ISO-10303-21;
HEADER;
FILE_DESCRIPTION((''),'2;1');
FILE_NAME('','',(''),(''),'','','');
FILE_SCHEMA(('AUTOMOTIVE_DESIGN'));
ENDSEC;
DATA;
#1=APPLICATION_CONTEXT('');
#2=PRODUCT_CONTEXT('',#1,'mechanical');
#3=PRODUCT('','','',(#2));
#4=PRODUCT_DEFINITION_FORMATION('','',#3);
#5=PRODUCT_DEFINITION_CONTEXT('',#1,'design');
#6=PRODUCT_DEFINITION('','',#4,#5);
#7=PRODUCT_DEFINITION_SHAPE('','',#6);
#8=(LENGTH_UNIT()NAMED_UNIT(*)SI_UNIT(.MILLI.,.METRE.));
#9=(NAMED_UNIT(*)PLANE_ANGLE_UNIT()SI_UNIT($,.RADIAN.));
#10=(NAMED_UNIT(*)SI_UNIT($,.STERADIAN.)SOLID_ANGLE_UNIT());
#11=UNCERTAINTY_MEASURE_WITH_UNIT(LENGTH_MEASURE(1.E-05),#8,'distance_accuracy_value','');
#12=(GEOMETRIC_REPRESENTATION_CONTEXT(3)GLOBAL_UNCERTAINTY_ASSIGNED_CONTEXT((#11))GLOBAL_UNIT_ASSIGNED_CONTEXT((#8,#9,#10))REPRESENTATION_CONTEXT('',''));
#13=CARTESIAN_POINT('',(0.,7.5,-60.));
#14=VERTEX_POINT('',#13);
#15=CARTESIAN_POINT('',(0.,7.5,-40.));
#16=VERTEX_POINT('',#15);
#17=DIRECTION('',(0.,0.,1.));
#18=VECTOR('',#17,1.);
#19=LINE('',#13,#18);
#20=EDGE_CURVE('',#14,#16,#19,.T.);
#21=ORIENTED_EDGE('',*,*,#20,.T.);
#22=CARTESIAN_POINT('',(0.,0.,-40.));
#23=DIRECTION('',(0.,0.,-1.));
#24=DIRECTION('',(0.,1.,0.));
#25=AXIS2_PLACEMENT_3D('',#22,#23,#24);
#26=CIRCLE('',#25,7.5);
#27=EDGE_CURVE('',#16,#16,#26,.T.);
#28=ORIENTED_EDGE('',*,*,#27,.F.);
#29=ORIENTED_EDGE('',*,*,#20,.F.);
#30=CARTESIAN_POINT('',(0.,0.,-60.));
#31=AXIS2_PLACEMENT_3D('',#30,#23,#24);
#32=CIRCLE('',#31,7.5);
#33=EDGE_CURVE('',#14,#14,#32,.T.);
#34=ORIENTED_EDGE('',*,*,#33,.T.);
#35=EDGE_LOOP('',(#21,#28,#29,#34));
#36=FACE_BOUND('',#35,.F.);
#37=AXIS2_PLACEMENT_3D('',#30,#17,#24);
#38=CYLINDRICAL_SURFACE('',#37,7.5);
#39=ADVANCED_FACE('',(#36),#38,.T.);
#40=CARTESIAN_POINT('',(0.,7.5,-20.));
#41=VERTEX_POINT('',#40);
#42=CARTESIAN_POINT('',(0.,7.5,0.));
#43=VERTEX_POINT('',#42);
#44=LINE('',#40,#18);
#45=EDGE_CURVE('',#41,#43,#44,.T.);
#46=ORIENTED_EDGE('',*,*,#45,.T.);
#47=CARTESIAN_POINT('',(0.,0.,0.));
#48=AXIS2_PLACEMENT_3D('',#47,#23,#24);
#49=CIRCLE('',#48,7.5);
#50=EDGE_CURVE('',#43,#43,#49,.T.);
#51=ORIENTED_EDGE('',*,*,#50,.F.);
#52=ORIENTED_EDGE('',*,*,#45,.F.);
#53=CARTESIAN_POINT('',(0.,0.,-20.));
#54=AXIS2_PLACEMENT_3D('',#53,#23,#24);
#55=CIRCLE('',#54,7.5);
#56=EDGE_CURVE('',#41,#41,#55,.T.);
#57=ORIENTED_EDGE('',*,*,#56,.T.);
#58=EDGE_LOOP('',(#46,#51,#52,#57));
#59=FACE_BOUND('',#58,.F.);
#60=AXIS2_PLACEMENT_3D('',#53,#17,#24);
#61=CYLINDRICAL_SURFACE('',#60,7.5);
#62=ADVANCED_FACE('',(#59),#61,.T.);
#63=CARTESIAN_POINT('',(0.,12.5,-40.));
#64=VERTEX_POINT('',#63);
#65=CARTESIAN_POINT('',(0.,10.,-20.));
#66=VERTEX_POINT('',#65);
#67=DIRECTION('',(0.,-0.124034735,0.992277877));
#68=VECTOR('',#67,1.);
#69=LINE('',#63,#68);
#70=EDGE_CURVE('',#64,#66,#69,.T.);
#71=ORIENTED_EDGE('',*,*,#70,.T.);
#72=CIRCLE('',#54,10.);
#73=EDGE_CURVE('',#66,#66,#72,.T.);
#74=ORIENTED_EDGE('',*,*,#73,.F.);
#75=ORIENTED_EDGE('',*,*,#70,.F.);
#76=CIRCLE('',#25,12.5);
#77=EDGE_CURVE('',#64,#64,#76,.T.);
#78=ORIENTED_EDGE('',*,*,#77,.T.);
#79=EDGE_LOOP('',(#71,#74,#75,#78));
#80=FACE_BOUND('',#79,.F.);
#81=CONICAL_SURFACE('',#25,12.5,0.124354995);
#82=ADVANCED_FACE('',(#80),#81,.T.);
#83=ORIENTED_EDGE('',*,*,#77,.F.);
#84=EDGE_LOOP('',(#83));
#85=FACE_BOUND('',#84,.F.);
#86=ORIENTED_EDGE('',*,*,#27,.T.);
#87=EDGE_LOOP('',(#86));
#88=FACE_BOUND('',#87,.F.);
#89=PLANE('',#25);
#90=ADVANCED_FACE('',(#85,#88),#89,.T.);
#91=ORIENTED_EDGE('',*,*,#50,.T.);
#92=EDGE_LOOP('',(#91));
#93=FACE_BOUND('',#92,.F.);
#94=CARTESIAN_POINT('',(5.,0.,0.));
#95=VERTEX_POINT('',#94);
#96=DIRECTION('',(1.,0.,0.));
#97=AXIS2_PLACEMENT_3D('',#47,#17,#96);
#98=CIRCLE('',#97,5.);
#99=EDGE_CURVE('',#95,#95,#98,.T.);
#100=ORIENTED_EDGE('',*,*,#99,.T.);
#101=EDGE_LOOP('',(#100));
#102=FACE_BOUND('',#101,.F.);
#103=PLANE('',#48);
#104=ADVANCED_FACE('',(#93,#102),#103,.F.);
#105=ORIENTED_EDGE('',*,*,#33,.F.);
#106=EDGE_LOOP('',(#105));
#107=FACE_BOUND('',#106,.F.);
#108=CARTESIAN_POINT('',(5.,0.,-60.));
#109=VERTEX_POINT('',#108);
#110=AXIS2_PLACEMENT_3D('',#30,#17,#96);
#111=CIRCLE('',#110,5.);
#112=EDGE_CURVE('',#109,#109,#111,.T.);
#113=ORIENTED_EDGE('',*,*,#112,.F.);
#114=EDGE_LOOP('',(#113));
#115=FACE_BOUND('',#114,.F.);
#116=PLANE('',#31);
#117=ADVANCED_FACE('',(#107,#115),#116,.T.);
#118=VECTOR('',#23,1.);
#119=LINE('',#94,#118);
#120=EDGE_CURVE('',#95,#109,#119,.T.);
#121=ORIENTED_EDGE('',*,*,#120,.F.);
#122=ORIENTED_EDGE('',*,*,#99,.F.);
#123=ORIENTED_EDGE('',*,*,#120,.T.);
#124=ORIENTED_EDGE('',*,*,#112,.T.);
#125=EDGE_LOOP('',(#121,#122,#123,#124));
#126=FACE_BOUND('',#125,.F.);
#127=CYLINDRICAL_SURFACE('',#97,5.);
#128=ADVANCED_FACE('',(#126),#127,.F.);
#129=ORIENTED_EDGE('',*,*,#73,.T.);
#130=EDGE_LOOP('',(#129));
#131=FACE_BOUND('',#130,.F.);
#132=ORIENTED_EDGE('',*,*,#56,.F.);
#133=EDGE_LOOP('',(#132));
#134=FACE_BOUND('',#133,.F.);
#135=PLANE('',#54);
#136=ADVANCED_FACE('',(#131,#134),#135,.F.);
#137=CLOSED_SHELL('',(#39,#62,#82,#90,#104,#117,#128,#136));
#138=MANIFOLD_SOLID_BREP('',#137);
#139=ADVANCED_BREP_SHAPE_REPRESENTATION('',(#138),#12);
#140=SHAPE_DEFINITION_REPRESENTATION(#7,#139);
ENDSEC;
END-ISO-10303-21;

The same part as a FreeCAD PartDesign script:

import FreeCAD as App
import Part
import Sketcher

V = App.Vector


def add_polygon(sketch, points):
    """Adds a closed chain of lines whose ends are joined by coincident constraints."""
    first, n = sketch.GeometryCount, len(points)
    for a, b in zip(points, points[1:] + points[:1]):
        sketch.addGeometry(Part.LineSegment(App.Vector(*a, 0), App.Vector(*b, 0)), False)
    for i in range(n):
        sketch.addConstraint(Sketcher.Constraint("Coincident", first + i, 2, first + (i + 1) % n, 1))

doc = App.newDocument("Part")
params = doc.addObject("Spreadsheet::Sheet", "Params")
for row, (alias, value) in enumerate([
    ("sketch1_width", "5 mm"),
    ("sketch1_height", "20 mm"),
    ("sketch1_width2", "2.5 mm"),
    ("sketch1_width3", "7.5 mm"),
    ("revolution_angle", "360 deg"),
    ("sketch2_diameter", "10 mm"),
], start=1):
    params.set(f"A{row}", alias)
    params.set(f"B{row}", "=" + value)
    params.setAlias(f"B{row}", alias)

body = doc.addObject("PartDesign::Body", "Body")

sketch1 = doc.addObject("Sketcher::SketchObject", "Sketch")
body.addObject(sketch1)
sketch1.AttachmentSupport = (doc.YZ_Plane, [""])
sketch1.MapMode = "FlatFace"
add_polygon(sketch1, [(7.5, 0), (0, 0), (0, -60), (7.5, -60), (7.5, -40), (12.5, -40), (10, -20), (7.5, -20)])
sketch1.addConstraint([
    Sketcher.Constraint("Horizontal", 0),
    Sketcher.Constraint("Vertical", 1),
    Sketcher.Constraint("Horizontal", 2),
    Sketcher.Constraint("Vertical", 3),
    Sketcher.Constraint("Horizontal", 4),
    Sketcher.Constraint("Horizontal", 6),
    Sketcher.Constraint("Vertical", 7),
    Sketcher.Constraint("Coincident", 0, 2, -1, 1),
    Sketcher.Constraint("Vertical", 3, 2, 6, 2),
    Sketcher.Constraint("Equal", 3, 7),
    Sketcher.Constraint("DistanceX", 4, 1, 4, 2, 5.0),
    Sketcher.Constraint("DistanceY", 3, 1, 3, 2, 20.0),
    Sketcher.Constraint("DistanceX", 6, 2, 6, 1, 2.5),
    Sketcher.Constraint("DistanceY", 3, 2, -1, 1, 40.0),
    Sketcher.Constraint("DistanceX", 0, 2, 0, 1, 7.5),
])
sketch1.setExpression("Constraints[18]", "Params.sketch1_width")
sketch1.setExpression("Constraints[19]", "Params.sketch1_height")
sketch1.setExpression("Constraints[20]", "Params.sketch1_width2")
sketch1.setExpression("Constraints[22]", "Params.sketch1_width3")
revolution = doc.addObject("PartDesign::Revolution", "Revolution")
body.addObject(revolution)
revolution.Profile = sketch1
revolution.ReferenceAxis = (sketch1, ["V_Axis"])
revolution.setExpression("Angle", "Params.revolution_angle")

sketch2 = doc.addObject("Sketcher::SketchObject", "Sketch001")
body.addObject(sketch2)
sketch2.AttachmentSupport = (doc.XY_Plane, [""])
sketch2.MapMode = "FlatFace"
sketch2.addGeometry(Part.Circle(V(0, 0, 0), V(0, 0, 1), 5), False)
sketch2.addConstraint([
    Sketcher.Constraint("Coincident", 0, 3, -1, 1),
    Sketcher.Constraint("Diameter", 0, 10.0),
])
sketch2.setExpression("Constraints[1]", "Params.sketch2_diameter")
pocket1 = doc.addObject("PartDesign::Pocket", "Pocket")
body.addObject(pocket1)
pocket1.Profile = sketch2
pocket1.Type = "ThroughAll"

doc.recompute()
